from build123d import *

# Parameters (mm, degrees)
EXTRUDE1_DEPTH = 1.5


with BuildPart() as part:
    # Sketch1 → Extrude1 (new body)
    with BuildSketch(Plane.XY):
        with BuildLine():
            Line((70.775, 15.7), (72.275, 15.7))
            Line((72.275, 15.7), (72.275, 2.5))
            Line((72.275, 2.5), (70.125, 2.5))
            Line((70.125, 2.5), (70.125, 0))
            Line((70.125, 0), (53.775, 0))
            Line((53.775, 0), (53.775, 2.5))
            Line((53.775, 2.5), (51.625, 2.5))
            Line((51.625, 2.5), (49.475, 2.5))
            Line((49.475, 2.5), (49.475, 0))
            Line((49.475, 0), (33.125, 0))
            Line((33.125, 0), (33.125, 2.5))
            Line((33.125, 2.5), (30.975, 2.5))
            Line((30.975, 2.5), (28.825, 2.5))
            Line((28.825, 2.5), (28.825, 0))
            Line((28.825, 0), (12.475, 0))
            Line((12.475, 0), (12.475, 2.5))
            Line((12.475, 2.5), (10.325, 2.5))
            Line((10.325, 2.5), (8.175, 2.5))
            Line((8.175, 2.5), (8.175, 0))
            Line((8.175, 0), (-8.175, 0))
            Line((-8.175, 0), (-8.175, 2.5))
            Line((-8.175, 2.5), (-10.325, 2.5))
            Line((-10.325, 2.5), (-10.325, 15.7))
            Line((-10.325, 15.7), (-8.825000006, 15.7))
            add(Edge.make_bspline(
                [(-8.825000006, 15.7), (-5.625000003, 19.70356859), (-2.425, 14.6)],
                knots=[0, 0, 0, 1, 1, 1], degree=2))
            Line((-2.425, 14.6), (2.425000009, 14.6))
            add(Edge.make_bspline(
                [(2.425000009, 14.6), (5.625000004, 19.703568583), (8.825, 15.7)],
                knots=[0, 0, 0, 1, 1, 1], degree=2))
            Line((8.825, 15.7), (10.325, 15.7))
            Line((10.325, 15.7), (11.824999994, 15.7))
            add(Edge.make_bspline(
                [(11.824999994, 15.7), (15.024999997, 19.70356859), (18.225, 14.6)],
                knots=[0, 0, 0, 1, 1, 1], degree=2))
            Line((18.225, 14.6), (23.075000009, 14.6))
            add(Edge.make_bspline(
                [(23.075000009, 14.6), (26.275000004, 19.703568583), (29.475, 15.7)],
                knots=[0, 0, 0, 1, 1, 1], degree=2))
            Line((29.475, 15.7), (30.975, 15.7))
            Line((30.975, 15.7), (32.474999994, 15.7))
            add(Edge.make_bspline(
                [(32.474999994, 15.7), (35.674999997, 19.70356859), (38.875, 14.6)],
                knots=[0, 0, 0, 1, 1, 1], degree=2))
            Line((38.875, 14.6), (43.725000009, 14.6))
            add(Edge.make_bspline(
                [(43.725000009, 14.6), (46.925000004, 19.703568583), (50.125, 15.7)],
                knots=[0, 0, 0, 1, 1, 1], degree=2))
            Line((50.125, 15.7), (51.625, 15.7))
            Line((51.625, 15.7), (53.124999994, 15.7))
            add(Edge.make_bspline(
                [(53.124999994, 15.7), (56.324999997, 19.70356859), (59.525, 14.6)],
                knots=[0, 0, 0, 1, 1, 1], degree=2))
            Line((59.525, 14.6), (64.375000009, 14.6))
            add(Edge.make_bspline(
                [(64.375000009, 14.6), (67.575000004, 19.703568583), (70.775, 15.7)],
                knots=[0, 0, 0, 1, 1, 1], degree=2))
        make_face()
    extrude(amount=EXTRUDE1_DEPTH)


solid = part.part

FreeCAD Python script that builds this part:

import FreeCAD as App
import Part
import Sketcher

V = App.Vector

doc = App.newDocument("Part")
body = doc.addObject("PartDesign::Body", "Body")

sketch1 = body.newObject("Sketcher::SketchObject", "Sketch")
sketch1.AttachmentSupport = (doc.getObject("XY_Plane"), [""])
sketch1.MapMode = "FlatFace"
sketch1.addGeometry([
    Part.LineSegment(V(72.275, 15.7, 0), V(70.775, 15.7, 0)),
    Part.BSplineCurve([V(64.375, 14.6, 0), V(67.575, 19.703569, 0), V(70.775, 15.7, 0)], [3, 3], [0, 1], False, 2, [1, 1, 1], False),
    Part.LineSegment(V(64.375, 14.6, 0), V(59.525, 14.6, 0)),
    Part.BSplineCurve([V(53.125, 15.7, 0), V(56.325, 19.703569, 0), V(59.525, 14.6, 0)], [3, 3], [0, 1], False, 2, [1, 1, 1], False),
    Part.LineSegment(V(53.125, 15.7, 0), V(50.125, 15.7, 0)),
    Part.BSplineCurve([V(43.725, 14.6, 0), V(46.925, 19.703569, 0), V(50.125, 15.7, 0)], [3, 3], [0, 1], False, 2, [1, 1, 1], False),
    Part.LineSegment(V(43.725, 14.6, 0), V(38.875, 14.6, 0)),
    Part.BSplineCurve([V(32.475, 15.7, 0), V(35.675, 19.703569, 0), V(38.875, 14.6, 0)], [3, 3], [0, 1], False, 2, [1, 1, 1], False),
    Part.LineSegment(V(32.475, 15.7, 0), V(29.475, 15.7, 0)),
    Part.BSplineCurve([V(23.075, 14.6, 0), V(26.275, 19.703569, 0), V(29.475, 15.7, 0)], [3, 3], [0, 1], False, 2, [1, 1, 1], False),
    Part.LineSegment(V(23.075, 14.6, 0), V(18.225, 14.6, 0)),
    Part.BSplineCurve([V(11.825, 15.7, 0), V(15.025, 19.703569, 0), V(18.225, 14.6, 0)], [3, 3], [0, 1], False, 2, [1, 1, 1], False),
    Part.LineSegment(V(11.825, 15.7, 0), V(8.825, 15.7, 0)),
    Part.BSplineCurve([V(2.425, 14.6, 0), V(5.625, 19.703569, 0), V(8.825, 15.7, 0)], [3, 3], [0, 1], False, 2, [1, 1, 1], False),
    Part.LineSegment(V(2.425, 14.6, 0), V(-2.425, 14.6, 0)),
    Part.BSplineCurve([V(-8.825, 15.7, 0), V(-5.625, 19.703569, 0), V(-2.425, 14.6, 0)], [3, 3], [0, 1], False, 2, [1, 1, 1], False),
    Part.LineSegment(V(-8.825, 15.7, 0), V(-10.325, 15.7, 0)),
    Part.LineSegment(V(-10.325, 15.7, 0), V(-10.325, 2.5, 0)),
    Part.LineSegment(V(-10.325, 2.5, 0), V(-8.175, 2.5, 0)),
    Part.LineSegment(V(-8.175, 2.5, 0), V(-8.175, 0, 0)),
    Part.LineSegment(V(-8.175, 0, 0), V(8.175, 0, 0)),
    Part.LineSegment(V(8.175, 0, 0), V(8.175, 2.5, 0)),
    Part.LineSegment(V(8.175, 2.5, 0), V(12.475, 2.5, 0)),
    Part.LineSegment(V(12.475, 2.5, 0), V(12.475, 0, 0)),
    Part.LineSegment(V(12.475, 0, 0), V(28.825, 0, 0)),
    Part.LineSegment(V(28.825, 0, 0), V(28.825, 2.5, 0)),
    Part.LineSegment(V(28.825, 2.5, 0), V(33.125, 2.5, 0)),
    Part.LineSegment(V(33.125, 2.5, 0), V(33.125, 0, 0)),
    Part.LineSegment(V(33.125, 0, 0), V(49.475, 0, 0)),
    Part.LineSegment(V(49.475, 0, 0), V(49.475, 2.5, 0)),
    Part.LineSegment(V(49.475, 2.5, 0), V(53.775, 2.5, 0)),
    Part.LineSegment(V(53.775, 2.5, 0), V(53.775, 0, 0)),
    Part.LineSegment(V(53.775, 0, 0), V(70.125, 0, 0)),
    Part.LineSegment(V(70.125, 0, 0), V(70.125, 2.5, 0)),
    Part.LineSegment(V(70.125, 2.5, 0), V(72.275, 2.5, 0)),
    Part.LineSegment(V(72.275, 2.5, 0), V(72.275, 15.7, 0)),
], False)
sketch1.addConstraint([
    Sketcher.Constraint("Block", 1),
    Sketcher.Constraint("Block", 3),
    Sketcher.Constraint("Block", 5),
    Sketcher.Constraint("Block", 7),
    Sketcher.Constraint("Block", 9),
    Sketcher.Constraint("Block", 11),
    Sketcher.Constraint("Block", 13),
    Sketcher.Constraint("Block", 15),
    Sketcher.Constraint("Coincident", 0, 2, 1, 2),
    Sketcher.Constraint("Coincident", 1, 1, 2, 1),
    Sketcher.Constraint("Coincident", 2, 2, 3, 2),
    Sketcher.Constraint("Coincident", 3, 1, 4, 1),
    Sketcher.Constraint("Coincident", 4, 2, 5, 2),
    Sketcher.Constraint("Coincident", 5, 1, 6, 1),
    Sketcher.Constraint("Coincident", 6, 2, 7, 2),
    Sketcher.Constraint("Coincident", 7, 1, 8, 1),
    Sketcher.Constraint("Coincident", 8, 2, 9, 2),
    Sketcher.Constraint("Coincident", 9, 1, 10, 1),
    Sketcher.Constraint("Coincident", 10, 2, 11, 2),
    Sketcher.Constraint("Coincident", 11, 1, 12, 1),
    Sketcher.Constraint("Coincident", 12, 2, 13, 2),
    Sketcher.Constraint("Coincident", 13, 1, 14, 1),
    Sketcher.Constraint("Coincident", 14, 2, 15, 2),
    Sketcher.Constraint("Coincident", 15, 1, 16, 1),
    Sketcher.Constraint("Coincident", 16, 2, 17, 1),
    Sketcher.Constraint("Coincident", 17, 2, 18, 1),
    Sketcher.Constraint("Coincident", 18, 2, 19, 1),
    Sketcher.Constraint("Coincident", 19, 2, 20, 1),
    Sketcher.Constraint("Coincident", 20, 2, 21, 1),
    Sketcher.Constraint("Coincident", 21, 2, 22, 1),
    Sketcher.Constraint("Coincident", 22, 2, 23, 1),
    Sketcher.Constraint("Coincident", 23, 2, 24, 1),
    Sketcher.Constraint("Coincident", 24, 2, 25, 1),
    Sketcher.Constraint("Coincident", 25, 2, 26, 1),
    Sketcher.Constraint("Coincident", 26, 2, 27, 1),
    Sketcher.Constraint("Coincident", 27, 2, 28, 1),
    Sketcher.Constraint("Coincident", 28, 2, 29, 1),
    Sketcher.Constraint("Coincident", 29, 2, 30, 1),
    Sketcher.Constraint("Coincident", 30, 2, 31, 1),
    Sketcher.Constraint("Coincident", 31, 2, 32, 1),
    Sketcher.Constraint("Coincident", 32, 2, 33, 1),
    Sketcher.Constraint("Coincident", 33, 2, 34, 1),
    Sketcher.Constraint("Coincident", 34, 2, 35, 1),
    Sketcher.Constraint("Coincident", 35, 2, 0, 1),
    Sketcher.Constraint("Horizontal", 0),
    Sketcher.Constraint("Horizontal", 16),
    Sketcher.Constraint("Vertical", 17),
    Sketcher.Constraint("Horizontal", 18),
    Sketcher.Constraint("Vertical", 19),
    Sketcher.Constraint("Horizontal", 20),
    Sketcher.Constraint("Vertical", 21),
    Sketcher.Constraint("Horizontal", 22),
    Sketcher.Constraint("Vertical", 23),
    Sketcher.Constraint("Horizontal", 24),
    Sketcher.Constraint("Vertical", 25),
    Sketcher.Constraint("Horizontal", 26),
    Sketcher.Constraint("Vertical", 27),
    Sketcher.Constraint("Horizontal", 28),
    Sketcher.Constraint("Vertical", 29),
    Sketcher.Constraint("Horizontal", 30),
    Sketcher.Constraint("Vertical", 31),
    Sketcher.Constraint("Horizontal", 32),
    Sketcher.Constraint("Vertical", 33),
    Sketcher.Constraint("Horizontal", 34),
    Sketcher.Constraint("Vertical", 35),
    Sketcher.Constraint("Symmetric", 19, 2, 20, 2, -1, 1),
    Sketcher.Constraint("PointOnObject", 23, 2, -1),
    Sketcher.Constraint("PointOnObject", 27, 2, -1),
    Sketcher.Constraint("PointOnObject", 31, 2, -1),
    Sketcher.Constraint("Horizontal", 18, 2, 21, 2),
    Sketcher.Constraint("Horizontal", 22, 2, 25, 2),
    Sketcher.Constraint("Horizontal", 26, 2, 29, 2),
    Sketcher.Constraint("Horizontal", 30, 2, 33, 2),
    Sketcher.Constraint("Equal", 0, 16),
    Sketcher.Constraint("Equal", 20, 24),
    Sketcher.Constraint("Equal", 22, 26),
    Sketcher.Constraint("Equal", 24, 28),
    Sketcher.Constraint("Equal", 26, 30),
    Sketcher.Constraint("Equal", 28, 32),
    Sketcher.Constraint("Equal", 18, 34),
    Sketcher.Constraint("DistanceX", 0, 2, 0, 1, 1.5),
    Sketcher.Constraint("DistanceX", 22, 1, 22, 2, 4.3),
    Sketcher.Constraint("DistanceY", 17, 2, 17, 1, 13.2),
])
pad1 = body.newObject("PartDesign::Pad", "Pad")
pad1.Profile = sketch1
pad1.Length = 1.5

doc.recompute()
